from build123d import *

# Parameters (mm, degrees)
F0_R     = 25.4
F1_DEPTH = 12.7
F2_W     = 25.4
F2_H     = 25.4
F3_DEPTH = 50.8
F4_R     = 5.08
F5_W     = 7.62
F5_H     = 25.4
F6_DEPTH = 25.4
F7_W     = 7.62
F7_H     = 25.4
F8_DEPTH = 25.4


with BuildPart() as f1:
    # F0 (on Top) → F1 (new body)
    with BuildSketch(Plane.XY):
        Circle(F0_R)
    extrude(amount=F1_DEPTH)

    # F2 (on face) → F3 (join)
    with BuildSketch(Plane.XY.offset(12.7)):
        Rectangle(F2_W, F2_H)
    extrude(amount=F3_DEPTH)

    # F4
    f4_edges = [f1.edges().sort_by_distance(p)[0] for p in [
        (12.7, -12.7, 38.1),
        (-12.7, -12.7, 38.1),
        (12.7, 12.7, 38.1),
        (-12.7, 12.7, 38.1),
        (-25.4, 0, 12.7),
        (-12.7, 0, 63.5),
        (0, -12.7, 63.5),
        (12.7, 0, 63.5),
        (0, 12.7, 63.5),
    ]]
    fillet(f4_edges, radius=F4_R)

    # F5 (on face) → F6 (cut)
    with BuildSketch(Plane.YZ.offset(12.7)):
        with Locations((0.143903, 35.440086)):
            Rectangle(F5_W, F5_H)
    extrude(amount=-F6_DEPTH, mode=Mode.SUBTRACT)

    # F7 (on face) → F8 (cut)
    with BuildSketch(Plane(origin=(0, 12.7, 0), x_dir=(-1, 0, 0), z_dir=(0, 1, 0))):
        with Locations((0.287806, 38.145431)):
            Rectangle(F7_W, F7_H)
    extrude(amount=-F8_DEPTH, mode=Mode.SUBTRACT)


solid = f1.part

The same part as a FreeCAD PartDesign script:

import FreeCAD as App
import Part
import Sketcher
from FreeCAD import Vector
Q = App.Units.Quantity


def edges_at(feature, points):
    """Names of the edges that pass closest to the given points."""
    edges = feature.Shape.Edges
    near = lambda p: min(range(len(edges)), key=lambda i: edges[i].distToShape(Part.Vertex(*p))[0])
    return sorted({f"Edge{near(p) + 1}" for p in points})


def add_polygon(sketch, points):
    """Adds a closed chain of lines whose ends are joined by coincident constraints."""
    first, n = sketch.GeometryCount, len(points)
    for a, b in zip(points, points[1:] + points[:1]):
        sketch.addGeometry(Part.LineSegment(App.Vector(*a, 0), App.Vector(*b, 0)), False)
    for i in range(n):
        sketch.addConstraint(Sketcher.Constraint("Coincident", first + i, 2, first + (i + 1) % n, 1))

doc = App.newDocument("Part")
body = doc.addObject("PartDesign::Body", "Body")

sketch1 = body.newObject("Sketcher::SketchObject", "Sketch")
sketch1.AttachmentSupport = (doc.getObject("XY_Plane"), [""])
sketch1.MapMode = "FlatFace"
sketch1.addGeometry(Part.Circle(Vector(0, 0, 0), Vector(0, 0, 1), 25), False)
sketch1.addConstraint(Sketcher.Constraint("Coincident", 0, 3, -1, 1))
sketch1.addConstraint(Sketcher.Constraint("Diameter", 0, Q("2 in")))
pad1 = body.newObject("PartDesign::Pad", "Pad")
pad1.Profile = sketch1
pad1.Length = Q("0.5 in")

sketch2 = body.newObject("Sketcher::SketchObject", "Sketch001")
sketch2.AttachmentSupport = (doc.getObject("XY_Plane"), [""])
sketch2.MapMode = "FlatFace"
sketch2.AttachmentOffset = App.Placement(Vector(0, 0, 0.5 * 25.4), App.Rotation())
add_polygon(sketch2, [(-13, 13), (-13, -13), (13, -13), (13, 13)])
sketch2.addConstraint(Sketcher.Constraint("Vertical", 0))
sketch2.addConstraint(Sketcher.Constraint("Horizontal", 1))
sketch2.addConstraint(Sketcher.Constraint("Vertical", 2))
sketch2.addConstraint(Sketcher.Constraint("Horizontal", 3))
sketch2.addConstraint(Sketcher.Constraint("Symmetric", 0, 2, 2, 2, -1, 1))
sketch2.addConstraint(Sketcher.Constraint("Equal", 3, 0))
sketch2.addConstraint(Sketcher.Constraint("DistanceX", 1, 1, 1, 2, Q("1 in")))
pad2 = body.newObject("PartDesign::Pad", "Pad001")
pad2.Profile = sketch2
pad2.Length = Q("2 in")
doc.recompute()

fillet = body.newObject("PartDesign::Fillet", "Fillet")
fillet.Base = (pad2, edges_at(pad2, [
    (12.7, -12.7, 38.1),
    (-12.7, -12.7, 38.1),
    (12.7, 12.7, 38.1),
    (-12.7, 12.7, 38.1),
    (-25.4, 0, 12.7),
    (-12.7, 0, 63.5),
    (0, -12.7, 63.5),
    (12.7, 0, 63.5),
    (0, 12.7, 63.5),
]))
fillet.Radius = Q("0.2 in")

sketch3 = body.newObject("Sketcher::SketchObject", "Sketch002")
sketch3.AttachmentSupport = (doc.getObject("YZ_Plane"), [""])
sketch3.MapMode = "FlatFace"
sketch3.AttachmentOffset = App.Placement(Vector(0, 0, 0.5 * 25.4), App.Rotation())
add_polygon(sketch3, [(-4, 48), (-4, 23), (4, 23), (4, 48)])
sketch3.addConstraint(Sketcher.Constraint("Vertical", 0))
sketch3.addConstraint(Sketcher.Constraint("Horizontal", 1))
sketch3.addConstraint(Sketcher.Constraint("Vertical", 2))
sketch3.addConstraint(Sketcher.Constraint("Horizontal", 3))
sketch3.addConstraint(Sketcher.Constraint("DistanceY", 0, 2, 0, 1, Q("1 in")))
sketch3.addConstraint(Sketcher.Constraint("DistanceX", 1, 1, 1, 2, Q("0.3 in")))
sketch3.addConstraint(Sketcher.Constraint("DistanceX", 0, 2, -1, 1, 3.666097))
sketch3.addConstraint(Sketcher.Constraint("DistanceY", -1, 1, 0, 2, 22.740086))
pocket1 = body.newObject("PartDesign::Pocket", "Pocket")
pocket1.Profile = sketch3
pocket1.Length = Q("1 in")

sketch4 = body.newObject("Sketcher::SketchObject", "Sketch003")
sketch4.AttachmentSupport = (doc.getObject("XZ_Plane"), [""])
sketch4.MapMode = "FlatFace"
sketch4.AttachmentOffset = App.Placement(Vector(0, 0, -0.5 * 25.4), App.Rotation())
add_polygon(sketch4, [(4, 51), (4, 25), (-4, 25), (-4, 51)])
sketch4.addConstraint(Sketcher.Constraint("Vertical", 0))
sketch4.addConstraint(Sketcher.Constraint("Horizontal", 1))
sketch4.addConstraint(Sketcher.Constraint("Vertical", 2))
sketch4.addConstraint(Sketcher.Constraint("Horizontal", 3))
sketch4.addConstraint(Sketcher.Constraint("DistanceY", 0, 2, 0, 1, Q("1 in")))
sketch4.addConstraint(Sketcher.Constraint("DistanceX", 1, 2, 1, 1, Q("0.3 in")))
sketch4.addConstraint(Sketcher.Constraint("DistanceY", -1, 1, 0, 2, 25.445431))
sketch4.addConstraint(Sketcher.Constraint("DistanceX", -1, 1, 0, 2, 3.522194))
pocket2 = body.newObject("PartDesign::Pocket", "Pocket001")
pocket2.Profile = sketch4
pocket2.Length = Q("1 in")
pocket2.Reversed = True

doc.recompute()
